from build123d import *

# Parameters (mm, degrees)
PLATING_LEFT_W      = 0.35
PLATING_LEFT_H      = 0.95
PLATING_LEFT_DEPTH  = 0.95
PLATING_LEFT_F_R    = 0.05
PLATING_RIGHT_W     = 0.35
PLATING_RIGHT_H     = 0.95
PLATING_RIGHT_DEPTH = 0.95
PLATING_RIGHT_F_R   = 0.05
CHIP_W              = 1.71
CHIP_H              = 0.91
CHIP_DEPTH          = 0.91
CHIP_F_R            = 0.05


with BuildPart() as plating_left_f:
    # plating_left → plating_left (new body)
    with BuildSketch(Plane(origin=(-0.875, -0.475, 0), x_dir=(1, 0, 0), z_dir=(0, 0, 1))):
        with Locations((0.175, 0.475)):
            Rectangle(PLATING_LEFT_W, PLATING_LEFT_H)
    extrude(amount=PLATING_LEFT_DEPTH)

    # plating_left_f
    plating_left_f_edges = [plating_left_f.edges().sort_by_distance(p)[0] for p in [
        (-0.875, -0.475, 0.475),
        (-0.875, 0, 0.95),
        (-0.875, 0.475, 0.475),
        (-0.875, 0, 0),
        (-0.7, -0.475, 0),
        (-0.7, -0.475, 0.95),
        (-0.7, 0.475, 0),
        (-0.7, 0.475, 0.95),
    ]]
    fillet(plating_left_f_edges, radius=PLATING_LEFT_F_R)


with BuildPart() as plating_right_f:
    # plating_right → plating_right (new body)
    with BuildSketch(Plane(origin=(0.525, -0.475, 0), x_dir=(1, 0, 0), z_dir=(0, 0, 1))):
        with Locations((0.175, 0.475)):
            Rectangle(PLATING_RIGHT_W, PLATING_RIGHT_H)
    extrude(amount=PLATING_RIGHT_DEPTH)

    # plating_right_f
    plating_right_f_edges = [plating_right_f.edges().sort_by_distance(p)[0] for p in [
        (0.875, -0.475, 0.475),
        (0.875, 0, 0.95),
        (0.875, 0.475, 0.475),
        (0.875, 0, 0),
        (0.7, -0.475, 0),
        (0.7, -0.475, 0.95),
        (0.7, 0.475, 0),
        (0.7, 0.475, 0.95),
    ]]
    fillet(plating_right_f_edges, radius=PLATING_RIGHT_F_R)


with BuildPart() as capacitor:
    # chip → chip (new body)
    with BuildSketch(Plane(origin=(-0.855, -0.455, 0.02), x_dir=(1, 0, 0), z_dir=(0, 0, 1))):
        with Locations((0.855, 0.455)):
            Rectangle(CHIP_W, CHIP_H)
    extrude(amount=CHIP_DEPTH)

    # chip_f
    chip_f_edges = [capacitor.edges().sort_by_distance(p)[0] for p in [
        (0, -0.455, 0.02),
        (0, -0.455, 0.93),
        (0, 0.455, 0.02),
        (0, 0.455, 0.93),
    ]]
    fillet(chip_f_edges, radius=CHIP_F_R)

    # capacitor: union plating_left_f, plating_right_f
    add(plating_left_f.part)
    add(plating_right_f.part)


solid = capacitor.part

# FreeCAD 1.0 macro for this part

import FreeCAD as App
import Part
import Sketcher

V = App.Vector
Q = App.Units.Quantity


def edges_at(feature, points):
    """Names of the edges that pass closest to the given points."""
    edges = feature.Shape.Edges
    near = lambda p: min(range(len(edges)), key=lambda i: edges[i].distToShape(Part.Vertex(*p))[0])
    return sorted({f"Edge{near(p) + 1}" for p in points})


def add_polygon(sketch, points):
    """Adds a closed chain of lines whose ends are joined by coincident constraints."""
    first, n = sketch.GeometryCount, len(points)
    for a, b in zip(points, points[1:] + points[:1]):
        sketch.addGeometry(Part.LineSegment(App.Vector(*a, 0), App.Vector(*b, 0)), False)
    for i in range(n):
        sketch.addConstraint(Sketcher.Constraint("Coincident", first + i, 2, first + (i + 1) % n, 1))

doc = App.newDocument("Part")
body = doc.addObject("PartDesign::Body", "Body")

# Sketch on XY plane
sketch1 = body.newObject("Sketcher::SketchObject", "Sketch")
sketch1.AttachmentSupport = (doc.getObject("XY_Plane"), [""])
sketch1.MapMode = "FlatFace"
add_polygon(sketch1, [(-0.88, 0.47), (-0.88, -0.47), (-0.53, -0.47), (-0.53, 0.47)])  # lines 0-3
sketch1.addConstraint([
    Sketcher.Constraint("Vertical", 0),
    Sketcher.Constraint("Horizontal", 1),
    Sketcher.Constraint("Vertical", 2),
    Sketcher.Constraint("Horizontal", 3),
    Sketcher.Constraint("DistanceX", 1, 1, 1, 2, Q("0.35 mm")),
    Sketcher.Constraint("DistanceY", 0, 2, 0, 1, Q("0.95 mm")),
    Sketcher.Constraint("DistanceX", 0, 2, -1, 1, Q("0.875 mm")),
    Sketcher.Constraint("DistanceY", 0, 2, -1, 1, Q("0.475 mm")),
])
pad1 = body.newObject("PartDesign::Pad", "Pad")
pad1.Profile = sketch1
pad1.Length = 0.95
doc.recompute()

fillet = body.newObject("PartDesign::Fillet", "Fillet")
fillet.Base = (pad1, edges_at(pad1, [
    (-0.875, -0.475, 0.475),
    (-0.875, 0, 0.95),
    (-0.875, 0.475, 0.475),
    (-0.875, 0, 0),
    (-0.7, -0.475, 0),
    (-0.7, -0.475, 0.95),
    (-0.7, 0.475, 0),
    (-0.7, 0.475, 0.95),
]))
fillet.Radius = 0.05
body2 = doc.addObject("PartDesign::Body", "Body001")

# Sketch on XY plane
sketch2 = body2.newObject("Sketcher::SketchObject", "Sketch001")
sketch2.AttachmentSupport = (doc.getObject("XY_Plane001"), [""])
sketch2.MapMode = "FlatFace"
add_polygon(sketch2, [(0.53, 0.47), (0.53, -0.47), (0.88, -0.47), (0.88, 0.47)])  # lines 0-3
sketch2.addConstraint([
    Sketcher.Constraint("Vertical", 0),
    Sketcher.Constraint("Horizontal", 1),
    Sketcher.Constraint("Vertical", 2),
    Sketcher.Constraint("Horizontal", 3),
    Sketcher.Constraint("DistanceX", 1, 1, 1, 2, Q("0.35 mm")),
    Sketcher.Constraint("DistanceY", 0, 2, 0, 1, Q("0.95 mm")),
    Sketcher.Constraint("DistanceX", -1, 1, 0, 2, Q("0.525 mm")),
    Sketcher.Constraint("DistanceY", 0, 2, -1, 1, Q("0.475 mm")),
])
pad2 = body2.newObject("PartDesign::Pad", "Pad001")
pad2.Profile = sketch2
pad2.Length = 0.95
doc.recompute()

fillet2 = body2.newObject("PartDesign::Fillet", "Fillet001")
fillet2.Base = (pad2, edges_at(pad2, [
    (0.875, -0.475, 0.475),
    (0.875, 0, 0.95),
    (0.875, 0.475, 0.475),
    (0.875, 0, 0),
    (0.7, -0.475, 0),
    (0.7, -0.475, 0.95),
    (0.7, 0.475, 0),
    (0.7, 0.475, 0.95),
]))
fillet2.Radius = 0.05
body3 = doc.addObject("PartDesign::Body", "Body002")

# Sketch on XY plane
sketch3 = body3.newObject("Sketcher::SketchObject", "Sketch002")
sketch3.AttachmentSupport = (doc.getObject("XY_Plane002"), [""])
sketch3.MapMode = "FlatFace"
sketch3.AttachmentOffset = App.Placement(V(0, 0, 0.02), App.Rotation())
add_polygon(sketch3, [(-0.9, 0.5), (-0.9, -0.5), (0.9, -0.5), (0.9, 0.5)])  # lines 0-3
sketch3.addConstraint([
    Sketcher.Constraint("Vertical", 0),
    Sketcher.Constraint("Horizontal", 1),
    Sketcher.Constraint("Vertical", 2),
    Sketcher.Constraint("Horizontal", 3),
    Sketcher.Constraint("Symmetric", 0, 2, 2, 2, -1, 1),
    Sketcher.Constraint("DistanceX", 1, 1, 1, 2, Q("1.71 mm")),
    Sketcher.Constraint("DistanceY", 0, 2, 0, 1, Q("0.91 mm")),
])
pad3 = body3.newObject("PartDesign::Pad", "Pad002")
pad3.Profile = sketch3
pad3.Length = 0.91
doc.recompute()

fillet3 = body3.newObject("PartDesign::Fillet", "Fillet002")
fillet3.Base = (pad3, edges_at(pad3, [
    (0, -0.455, 0.02),
    (0, -0.455, 0.93),
    (0, 0.455, 0.02),
    (0, 0.455, 0.93),
]))
fillet3.Radius = 0.05
doc.recompute()

boolean = body3.newObject("PartDesign::Boolean", "Boolean")
boolean.Type = "Fuse"
boolean.addObjects([body])
doc.recompute()

boolean2 = body3.newObject("PartDesign::Boolean", "Boolean001")
boolean2.Type = "Fuse"
boolean2.addObjects([body2])

doc.recompute()
